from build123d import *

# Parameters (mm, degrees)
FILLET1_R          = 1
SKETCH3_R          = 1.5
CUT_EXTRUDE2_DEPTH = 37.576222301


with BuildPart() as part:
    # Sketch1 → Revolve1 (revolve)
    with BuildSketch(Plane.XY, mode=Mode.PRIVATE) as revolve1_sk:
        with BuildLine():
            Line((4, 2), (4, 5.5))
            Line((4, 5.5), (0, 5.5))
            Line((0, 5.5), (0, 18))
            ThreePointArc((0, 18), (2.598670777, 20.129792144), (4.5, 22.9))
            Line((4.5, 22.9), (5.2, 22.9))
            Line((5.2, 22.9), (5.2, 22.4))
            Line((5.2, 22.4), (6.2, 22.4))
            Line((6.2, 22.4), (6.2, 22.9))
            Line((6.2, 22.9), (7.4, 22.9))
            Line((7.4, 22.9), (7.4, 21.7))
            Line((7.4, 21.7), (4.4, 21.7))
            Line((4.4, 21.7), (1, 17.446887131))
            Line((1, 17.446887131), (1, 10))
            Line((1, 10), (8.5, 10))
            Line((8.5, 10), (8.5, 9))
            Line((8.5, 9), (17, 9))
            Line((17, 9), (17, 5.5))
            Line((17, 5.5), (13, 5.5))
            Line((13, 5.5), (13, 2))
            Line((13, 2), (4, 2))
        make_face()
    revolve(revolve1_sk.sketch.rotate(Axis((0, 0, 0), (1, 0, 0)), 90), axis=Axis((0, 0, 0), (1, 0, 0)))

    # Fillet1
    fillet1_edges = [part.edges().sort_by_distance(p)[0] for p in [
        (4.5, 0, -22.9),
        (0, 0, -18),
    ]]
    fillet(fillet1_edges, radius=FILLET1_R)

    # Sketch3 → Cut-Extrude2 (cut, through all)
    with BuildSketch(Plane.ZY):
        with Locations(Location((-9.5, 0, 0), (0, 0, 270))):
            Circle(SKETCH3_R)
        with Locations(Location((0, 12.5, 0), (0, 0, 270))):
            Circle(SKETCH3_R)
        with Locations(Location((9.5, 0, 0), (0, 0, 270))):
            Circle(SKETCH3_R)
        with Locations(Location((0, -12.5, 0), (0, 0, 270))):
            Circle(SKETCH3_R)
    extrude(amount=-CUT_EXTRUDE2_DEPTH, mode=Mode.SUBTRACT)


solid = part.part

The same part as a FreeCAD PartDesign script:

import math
import FreeCAD as App
import Part
import Sketcher


def edges_at(feature, points):
    """Names of the edges that pass closest to the given points."""
    edges = feature.Shape.Edges
    near = lambda p: min(range(len(edges)), key=lambda i: edges[i].distToShape(Part.Vertex(*p))[0])
    return sorted({f"Edge{near(p) + 1}" for p in points})

doc = App.newDocument("Part")
params = doc.addObject("Spreadsheet::Sheet", "Params")
for row, (alias, value) in enumerate([
    ("sketch1_width", "9 mm"),
    ("sketch1_width2", "4 mm"),
    ("sketch1_width3", "3 mm"),
    ("sketch1_width4", "1 mm"),
    ("sketch1_width5", "8.5 mm"),
    ("revolution_angle", "360 deg"),
    ("fillet_radius", "1 mm"),
    ("sketch2_diameter", "3 mm"),
], start=1):
    params.set(f"A{row}", alias)
    params.set(f"B{row}", "=" + value)
    params.setAlias(f"B{row}", alias)

body = doc.addObject("PartDesign::Body", "Body")

# Sketch on XY plane
sketch1 = doc.addObject("Sketcher::SketchObject", "Sketch")
body.addObject(sketch1)
sketch1.AttachmentSupport = (doc.XY_Plane, [""])
sketch1.MapMode = "FlatFace"
sketch1.addGeometry(Part.LineSegment(App.Vector(4, 5.5, 0), App.Vector(4, 2, 0)), False)
sketch1.addGeometry(Part.LineSegment(App.Vector(4, 2, 0), App.Vector(13, 2, 0)), False)
sketch1.addGeometry(Part.LineSegment(App.Vector(13, 2, 0), App.Vector(13, 5.5, 0)), False)
sketch1.addGeometry(Part.LineSegment(App.Vector(13, 5.5, 0), App.Vector(17, 5.5, 0)), False)
sketch1.addGeometry(Part.LineSegment(App.Vector(17, 5.5, 0), App.Vector(17, 9, 0)), False)
sketch1.addGeometry(Part.LineSegment(App.Vector(17, 9, 0), App.Vector(8.5, 9, 0)), False)
sketch1.addGeometry(Part.LineSegment(App.Vector(8.5, 9, 0), App.Vector(8.5, 10, 0)), False)
sketch1.addGeometry(Part.LineSegment(App.Vector(8.5, 10, 0), App.Vector(1, 10, 0)), False)
sketch1.addGeometry(Part.LineSegment(App.Vector(1, 10, 0), App.Vector(1, 17.4, 0)), False)
sketch1.addGeometry(Part.LineSegment(App.Vector(1, 17.4, 0), App.Vector(4.4, 21.7, 0)), False)
sketch1.addGeometry(Part.LineSegment(App.Vector(4.4, 21.7, 0), App.Vector(7.4, 21.7, 0)), False)
sketch1.addGeometry(Part.LineSegment(App.Vector(7.4, 21.7, 0), App.Vector(7.4, 22.9, 0)), False)
sketch1.addGeometry(Part.LineSegment(App.Vector(7.4, 22.9, 0), App.Vector(6.2, 22.9, 0)), False)
sketch1.addGeometry(Part.LineSegment(App.Vector(6.2, 22.9, 0), App.Vector(6.2, 22.4, 0)), False)
sketch1.addGeometry(Part.LineSegment(App.Vector(6.2, 22.4, 0), App.Vector(5.2, 22.4, 0)), False)
sketch1.addGeometry(Part.LineSegment(App.Vector(5.2, 22.4, 0), App.Vector(5.2, 22.9, 0)), False)
sketch1.addGeometry(Part.LineSegment(App.Vector(5.2, 22.9, 0), App.Vector(4.5, 22.9, 0)), False)
sketch1.addGeometry(Part.ArcOfCircle(Part.Circle(App.Vector(-6.2, 28.2, 0), App.Vector(0, 0, 1), 11.9), math.radians(-59), math.radians(-26)), False)
sketch1.addGeometry(Part.LineSegment(App.Vector(0, 18, 0), App.Vector(0, 5.5, 0)), False)
sketch1.addGeometry(Part.LineSegment(App.Vector(0, 5.5, 0), App.Vector(4, 5.5, 0)), False)
sketch1.addConstraint(Sketcher.Constraint("Coincident", 0, 2, 1, 1))
sketch1.addConstraint(Sketcher.Constraint("Coincident", 1, 2, 2, 1))
sketch1.addConstraint(Sketcher.Constraint("Coincident", 2, 2, 3, 1))
sketch1.addConstraint(Sketcher.Constraint("Coincident", 3, 2, 4, 1))
sketch1.addConstraint(Sketcher.Constraint("Coincident", 4, 2, 5, 1))
sketch1.addConstraint(Sketcher.Constraint("Coincident", 5, 2, 6, 1))
sketch1.addConstraint(Sketcher.Constraint("Coincident", 6, 2, 7, 1))
sketch1.addConstraint(Sketcher.Constraint("Coincident", 7, 2, 8, 1))
sketch1.addConstraint(Sketcher.Constraint("Coincident", 8, 2, 9, 1))
sketch1.addConstraint(Sketcher.Constraint("Coincident", 9, 2, 10, 1))
sketch1.addConstraint(Sketcher.Constraint("Coincident", 10, 2, 11, 1))
sketch1.addConstraint(Sketcher.Constraint("Coincident", 11, 2, 12, 1))
sketch1.addConstraint(Sketcher.Constraint("Coincident", 12, 2, 13, 1))
sketch1.addConstraint(Sketcher.Constraint("Coincident", 13, 2, 14, 1))
sketch1.addConstraint(Sketcher.Constraint("Coincident", 14, 2, 15, 1))
sketch1.addConstraint(Sketcher.Constraint("Coincident", 15, 2, 16, 1))
sketch1.addConstraint(Sketcher.Constraint("Coincident", 16, 2, 17, 2))
sketch1.addConstraint(Sketcher.Constraint("Coincident", 17, 1, 18, 1))
sketch1.addConstraint(Sketcher.Constraint("Coincident", 18, 2, 19, 1))
sketch1.addConstraint(Sketcher.Constraint("Coincident", 19, 2, 0, 1))
sketch1.addConstraint(Sketcher.Constraint("Vertical", 0))
sketch1.addConstraint(Sketcher.Constraint("Horizontal", 1))
sketch1.addConstraint(Sketcher.Constraint("Vertical", 2))
sketch1.addConstraint(Sketcher.Constraint("Horizontal", 3))
sketch1.addConstraint(Sketcher.Constraint("Vertical", 4))
sketch1.addConstraint(Sketcher.Constraint("Horizontal", 5))
sketch1.addConstraint(Sketcher.Constraint("Vertical", 6))
sketch1.addConstraint(Sketcher.Constraint("Horizontal", 7))
sketch1.addConstraint(Sketcher.Constraint("Vertical", 8))
sketch1.addConstraint(Sketcher.Constraint("Horizontal", 10))
sketch1.addConstraint(Sketcher.Constraint("Vertical", 11))
sketch1.addConstraint(Sketcher.Constraint("Horizontal", 12))
sketch1.addConstraint(Sketcher.Constraint("Vertical", 13))
sketch1.addConstraint(Sketcher.Constraint("Horizontal", 14))
sketch1.addConstraint(Sketcher.Constraint("Vertical", 15))
sketch1.addConstraint(Sketcher.Constraint("Horizontal", 16))
sketch1.addConstraint(Sketcher.Constraint("Vertical", 18))
sketch1.addConstraint(Sketcher.Constraint("Horizontal", 19))
sketch1.addConstraint(Sketcher.Constraint("PointOnObject", 17, 1, -2))
sketch1.addConstraint(Sketcher.Constraint("Horizontal", 12, 2, 15, 2))
sketch1.addConstraint(Sketcher.Constraint("Horizontal", 3, 2, 18, 2))
sketch1.addConstraint(Sketcher.Constraint("Equal", 3, 19))
sketch1.addConstraint(Sketcher.Constraint("Equal", 2, 4))
sketch1.addConstraint(Sketcher.Constraint("Equal", 14, 6))
sketch1.addConstraint(Sketcher.Constraint("Equal", 12, 11))
sketch1.addConstraint(Sketcher.Constraint("DistanceX", 1, 1, 1, 2, 9.0))
sketch1.addConstraint(Sketcher.Constraint("DistanceX", 3, 1, 3, 2, 4.0))
sketch1.addConstraint(Sketcher.Constraint("DistanceX", 10, 1, 10, 2, 3.0))
sketch1.addConstraint(Sketcher.Constraint("DistanceX", 14, 2, 14, 1, 1.0))
sketch1.addConstraint(Sketcher.Constraint("DistanceX", 5, 2, 5, 1, 8.5))
sketch1.addConstraint(Sketcher.Constraint("DistanceX", 7, 2, 7, 1, 7.5))
sketch1.addConstraint(Sketcher.Constraint("DistanceX", 12, 2, 12, 1, 1.2))
sketch1.addConstraint(Sketcher.Constraint("DistanceX", 16, 2, 16, 1, 0.7))
sketch1.addConstraint(Sketcher.Constraint("DistanceY", 0, 2, 0, 1, 3.5))
sketch1.addConstraint(Sketcher.Constraint("DistanceY", 13, 2, 13, 1, 0.5))
sketch1.addConstraint(Sketcher.Constraint("DistanceY", 18, 2, 18, 1, 12.5))
sketch1.addConstraint(Sketcher.Constraint("DistanceY", -1, 1, 0, 2, 2.0))
sketch1.addConstraint(Sketcher.Constraint("DistanceX", -1, 1, 9, 2, 4.4))
sketch1.addConstraint(Sketcher.Constraint("DistanceY", -1, 1, 9, 2, 21.7))
sketch1.addConstraint(Sketcher.Constraint("Radius", 17, 11.923515))
sketch1.addConstraint(Sketcher.Constraint("DistanceY", 8, 1, 8, 2, 7.446887))
sketch1.setExpression("Constraints[45]", "Params.sketch1_width")
sketch1.setExpression("Constraints[46]", "Params.sketch1_width2")
sketch1.setExpression("Constraints[47]", "Params.sketch1_width3")
sketch1.setExpression("Constraints[48]", "Params.sketch1_width4")
sketch1.setExpression("Constraints[49]", "Params.sketch1_width5")
revolution = doc.addObject("PartDesign::Revolution", "Revolution")
body.addObject(revolution)
revolution.Profile = sketch1
revolution.ReferenceAxis = (sketch1, ["H_Axis"])
revolution.setExpression("Angle", "Params.revolution_angle")
doc.recompute()

fillet = doc.addObject("PartDesign::Fillet", "Fillet")
body.addObject(fillet)
fillet.Base = (revolution, edges_at(revolution, [(4.5, 0, -22.9), (0, 0, -18)]))
fillet.setExpression("Radius", "Params.fillet_radius")

# Sketch on YZ plane
sketch2 = doc.addObject("Sketcher::SketchObject", "Sketch001")
body.addObject(sketch2)
sketch2.AttachmentSupport = (doc.YZ_Plane, [""])
sketch2.MapMode = "FlatFace"
sketch2.addGeometry(Part.Circle(App.Vector(0, -9.5, 0), App.Vector(0, 0, 1), 1.5), False)
sketch2.addGeometry(Part.Circle(App.Vector(12.5, 0, 0), App.Vector(0, 0, 1), 1.5), False)
sketch2.addGeometry(Part.Circle(App.Vector(0, 9.5, 0), App.Vector(0, 0, 1), 1.5), False)
sketch2.addGeometry(Part.Circle(App.Vector(-12.5, 0, 0), App.Vector(0, 0, 1), 1.5), False)
sketch2.addConstraint(Sketcher.Constraint("Equal", 0, 1))
sketch2.addConstraint(Sketcher.Constraint("Equal", 1, 2))
sketch2.addConstraint(Sketcher.Constraint("Equal", 2, 3))
sketch2.addConstraint(Sketcher.Constraint("Symmetric", 0, 3, 2, 3, -1, 1))
sketch2.addConstraint(Sketcher.Constraint("Symmetric", 1, 3, 3, 3, -1, 1))
sketch2.addConstraint(Sketcher.Constraint("PointOnObject", 0, 3, -2))
sketch2.addConstraint(Sketcher.Constraint("PointOnObject", 1, 3, -1))
sketch2.addConstraint(Sketcher.Constraint("Diameter", 0, 3.0))
sketch2.addConstraint(Sketcher.Constraint("DistanceY", 0, 3, 2, 3, 19.0))
sketch2.addConstraint(Sketcher.Constraint("DistanceX", 3, 3, 1, 3, 25.0))
sketch2.setExpression("Constraints[7]", "Params.sketch2_diameter")
pocket1 = doc.addObject("PartDesign::Pocket", "Pocket")
body.addObject(pocket1)
pocket1.Profile = sketch2
pocket1.Type = "ThroughAll"
pocket1.Reversed = True

doc.recompute()
